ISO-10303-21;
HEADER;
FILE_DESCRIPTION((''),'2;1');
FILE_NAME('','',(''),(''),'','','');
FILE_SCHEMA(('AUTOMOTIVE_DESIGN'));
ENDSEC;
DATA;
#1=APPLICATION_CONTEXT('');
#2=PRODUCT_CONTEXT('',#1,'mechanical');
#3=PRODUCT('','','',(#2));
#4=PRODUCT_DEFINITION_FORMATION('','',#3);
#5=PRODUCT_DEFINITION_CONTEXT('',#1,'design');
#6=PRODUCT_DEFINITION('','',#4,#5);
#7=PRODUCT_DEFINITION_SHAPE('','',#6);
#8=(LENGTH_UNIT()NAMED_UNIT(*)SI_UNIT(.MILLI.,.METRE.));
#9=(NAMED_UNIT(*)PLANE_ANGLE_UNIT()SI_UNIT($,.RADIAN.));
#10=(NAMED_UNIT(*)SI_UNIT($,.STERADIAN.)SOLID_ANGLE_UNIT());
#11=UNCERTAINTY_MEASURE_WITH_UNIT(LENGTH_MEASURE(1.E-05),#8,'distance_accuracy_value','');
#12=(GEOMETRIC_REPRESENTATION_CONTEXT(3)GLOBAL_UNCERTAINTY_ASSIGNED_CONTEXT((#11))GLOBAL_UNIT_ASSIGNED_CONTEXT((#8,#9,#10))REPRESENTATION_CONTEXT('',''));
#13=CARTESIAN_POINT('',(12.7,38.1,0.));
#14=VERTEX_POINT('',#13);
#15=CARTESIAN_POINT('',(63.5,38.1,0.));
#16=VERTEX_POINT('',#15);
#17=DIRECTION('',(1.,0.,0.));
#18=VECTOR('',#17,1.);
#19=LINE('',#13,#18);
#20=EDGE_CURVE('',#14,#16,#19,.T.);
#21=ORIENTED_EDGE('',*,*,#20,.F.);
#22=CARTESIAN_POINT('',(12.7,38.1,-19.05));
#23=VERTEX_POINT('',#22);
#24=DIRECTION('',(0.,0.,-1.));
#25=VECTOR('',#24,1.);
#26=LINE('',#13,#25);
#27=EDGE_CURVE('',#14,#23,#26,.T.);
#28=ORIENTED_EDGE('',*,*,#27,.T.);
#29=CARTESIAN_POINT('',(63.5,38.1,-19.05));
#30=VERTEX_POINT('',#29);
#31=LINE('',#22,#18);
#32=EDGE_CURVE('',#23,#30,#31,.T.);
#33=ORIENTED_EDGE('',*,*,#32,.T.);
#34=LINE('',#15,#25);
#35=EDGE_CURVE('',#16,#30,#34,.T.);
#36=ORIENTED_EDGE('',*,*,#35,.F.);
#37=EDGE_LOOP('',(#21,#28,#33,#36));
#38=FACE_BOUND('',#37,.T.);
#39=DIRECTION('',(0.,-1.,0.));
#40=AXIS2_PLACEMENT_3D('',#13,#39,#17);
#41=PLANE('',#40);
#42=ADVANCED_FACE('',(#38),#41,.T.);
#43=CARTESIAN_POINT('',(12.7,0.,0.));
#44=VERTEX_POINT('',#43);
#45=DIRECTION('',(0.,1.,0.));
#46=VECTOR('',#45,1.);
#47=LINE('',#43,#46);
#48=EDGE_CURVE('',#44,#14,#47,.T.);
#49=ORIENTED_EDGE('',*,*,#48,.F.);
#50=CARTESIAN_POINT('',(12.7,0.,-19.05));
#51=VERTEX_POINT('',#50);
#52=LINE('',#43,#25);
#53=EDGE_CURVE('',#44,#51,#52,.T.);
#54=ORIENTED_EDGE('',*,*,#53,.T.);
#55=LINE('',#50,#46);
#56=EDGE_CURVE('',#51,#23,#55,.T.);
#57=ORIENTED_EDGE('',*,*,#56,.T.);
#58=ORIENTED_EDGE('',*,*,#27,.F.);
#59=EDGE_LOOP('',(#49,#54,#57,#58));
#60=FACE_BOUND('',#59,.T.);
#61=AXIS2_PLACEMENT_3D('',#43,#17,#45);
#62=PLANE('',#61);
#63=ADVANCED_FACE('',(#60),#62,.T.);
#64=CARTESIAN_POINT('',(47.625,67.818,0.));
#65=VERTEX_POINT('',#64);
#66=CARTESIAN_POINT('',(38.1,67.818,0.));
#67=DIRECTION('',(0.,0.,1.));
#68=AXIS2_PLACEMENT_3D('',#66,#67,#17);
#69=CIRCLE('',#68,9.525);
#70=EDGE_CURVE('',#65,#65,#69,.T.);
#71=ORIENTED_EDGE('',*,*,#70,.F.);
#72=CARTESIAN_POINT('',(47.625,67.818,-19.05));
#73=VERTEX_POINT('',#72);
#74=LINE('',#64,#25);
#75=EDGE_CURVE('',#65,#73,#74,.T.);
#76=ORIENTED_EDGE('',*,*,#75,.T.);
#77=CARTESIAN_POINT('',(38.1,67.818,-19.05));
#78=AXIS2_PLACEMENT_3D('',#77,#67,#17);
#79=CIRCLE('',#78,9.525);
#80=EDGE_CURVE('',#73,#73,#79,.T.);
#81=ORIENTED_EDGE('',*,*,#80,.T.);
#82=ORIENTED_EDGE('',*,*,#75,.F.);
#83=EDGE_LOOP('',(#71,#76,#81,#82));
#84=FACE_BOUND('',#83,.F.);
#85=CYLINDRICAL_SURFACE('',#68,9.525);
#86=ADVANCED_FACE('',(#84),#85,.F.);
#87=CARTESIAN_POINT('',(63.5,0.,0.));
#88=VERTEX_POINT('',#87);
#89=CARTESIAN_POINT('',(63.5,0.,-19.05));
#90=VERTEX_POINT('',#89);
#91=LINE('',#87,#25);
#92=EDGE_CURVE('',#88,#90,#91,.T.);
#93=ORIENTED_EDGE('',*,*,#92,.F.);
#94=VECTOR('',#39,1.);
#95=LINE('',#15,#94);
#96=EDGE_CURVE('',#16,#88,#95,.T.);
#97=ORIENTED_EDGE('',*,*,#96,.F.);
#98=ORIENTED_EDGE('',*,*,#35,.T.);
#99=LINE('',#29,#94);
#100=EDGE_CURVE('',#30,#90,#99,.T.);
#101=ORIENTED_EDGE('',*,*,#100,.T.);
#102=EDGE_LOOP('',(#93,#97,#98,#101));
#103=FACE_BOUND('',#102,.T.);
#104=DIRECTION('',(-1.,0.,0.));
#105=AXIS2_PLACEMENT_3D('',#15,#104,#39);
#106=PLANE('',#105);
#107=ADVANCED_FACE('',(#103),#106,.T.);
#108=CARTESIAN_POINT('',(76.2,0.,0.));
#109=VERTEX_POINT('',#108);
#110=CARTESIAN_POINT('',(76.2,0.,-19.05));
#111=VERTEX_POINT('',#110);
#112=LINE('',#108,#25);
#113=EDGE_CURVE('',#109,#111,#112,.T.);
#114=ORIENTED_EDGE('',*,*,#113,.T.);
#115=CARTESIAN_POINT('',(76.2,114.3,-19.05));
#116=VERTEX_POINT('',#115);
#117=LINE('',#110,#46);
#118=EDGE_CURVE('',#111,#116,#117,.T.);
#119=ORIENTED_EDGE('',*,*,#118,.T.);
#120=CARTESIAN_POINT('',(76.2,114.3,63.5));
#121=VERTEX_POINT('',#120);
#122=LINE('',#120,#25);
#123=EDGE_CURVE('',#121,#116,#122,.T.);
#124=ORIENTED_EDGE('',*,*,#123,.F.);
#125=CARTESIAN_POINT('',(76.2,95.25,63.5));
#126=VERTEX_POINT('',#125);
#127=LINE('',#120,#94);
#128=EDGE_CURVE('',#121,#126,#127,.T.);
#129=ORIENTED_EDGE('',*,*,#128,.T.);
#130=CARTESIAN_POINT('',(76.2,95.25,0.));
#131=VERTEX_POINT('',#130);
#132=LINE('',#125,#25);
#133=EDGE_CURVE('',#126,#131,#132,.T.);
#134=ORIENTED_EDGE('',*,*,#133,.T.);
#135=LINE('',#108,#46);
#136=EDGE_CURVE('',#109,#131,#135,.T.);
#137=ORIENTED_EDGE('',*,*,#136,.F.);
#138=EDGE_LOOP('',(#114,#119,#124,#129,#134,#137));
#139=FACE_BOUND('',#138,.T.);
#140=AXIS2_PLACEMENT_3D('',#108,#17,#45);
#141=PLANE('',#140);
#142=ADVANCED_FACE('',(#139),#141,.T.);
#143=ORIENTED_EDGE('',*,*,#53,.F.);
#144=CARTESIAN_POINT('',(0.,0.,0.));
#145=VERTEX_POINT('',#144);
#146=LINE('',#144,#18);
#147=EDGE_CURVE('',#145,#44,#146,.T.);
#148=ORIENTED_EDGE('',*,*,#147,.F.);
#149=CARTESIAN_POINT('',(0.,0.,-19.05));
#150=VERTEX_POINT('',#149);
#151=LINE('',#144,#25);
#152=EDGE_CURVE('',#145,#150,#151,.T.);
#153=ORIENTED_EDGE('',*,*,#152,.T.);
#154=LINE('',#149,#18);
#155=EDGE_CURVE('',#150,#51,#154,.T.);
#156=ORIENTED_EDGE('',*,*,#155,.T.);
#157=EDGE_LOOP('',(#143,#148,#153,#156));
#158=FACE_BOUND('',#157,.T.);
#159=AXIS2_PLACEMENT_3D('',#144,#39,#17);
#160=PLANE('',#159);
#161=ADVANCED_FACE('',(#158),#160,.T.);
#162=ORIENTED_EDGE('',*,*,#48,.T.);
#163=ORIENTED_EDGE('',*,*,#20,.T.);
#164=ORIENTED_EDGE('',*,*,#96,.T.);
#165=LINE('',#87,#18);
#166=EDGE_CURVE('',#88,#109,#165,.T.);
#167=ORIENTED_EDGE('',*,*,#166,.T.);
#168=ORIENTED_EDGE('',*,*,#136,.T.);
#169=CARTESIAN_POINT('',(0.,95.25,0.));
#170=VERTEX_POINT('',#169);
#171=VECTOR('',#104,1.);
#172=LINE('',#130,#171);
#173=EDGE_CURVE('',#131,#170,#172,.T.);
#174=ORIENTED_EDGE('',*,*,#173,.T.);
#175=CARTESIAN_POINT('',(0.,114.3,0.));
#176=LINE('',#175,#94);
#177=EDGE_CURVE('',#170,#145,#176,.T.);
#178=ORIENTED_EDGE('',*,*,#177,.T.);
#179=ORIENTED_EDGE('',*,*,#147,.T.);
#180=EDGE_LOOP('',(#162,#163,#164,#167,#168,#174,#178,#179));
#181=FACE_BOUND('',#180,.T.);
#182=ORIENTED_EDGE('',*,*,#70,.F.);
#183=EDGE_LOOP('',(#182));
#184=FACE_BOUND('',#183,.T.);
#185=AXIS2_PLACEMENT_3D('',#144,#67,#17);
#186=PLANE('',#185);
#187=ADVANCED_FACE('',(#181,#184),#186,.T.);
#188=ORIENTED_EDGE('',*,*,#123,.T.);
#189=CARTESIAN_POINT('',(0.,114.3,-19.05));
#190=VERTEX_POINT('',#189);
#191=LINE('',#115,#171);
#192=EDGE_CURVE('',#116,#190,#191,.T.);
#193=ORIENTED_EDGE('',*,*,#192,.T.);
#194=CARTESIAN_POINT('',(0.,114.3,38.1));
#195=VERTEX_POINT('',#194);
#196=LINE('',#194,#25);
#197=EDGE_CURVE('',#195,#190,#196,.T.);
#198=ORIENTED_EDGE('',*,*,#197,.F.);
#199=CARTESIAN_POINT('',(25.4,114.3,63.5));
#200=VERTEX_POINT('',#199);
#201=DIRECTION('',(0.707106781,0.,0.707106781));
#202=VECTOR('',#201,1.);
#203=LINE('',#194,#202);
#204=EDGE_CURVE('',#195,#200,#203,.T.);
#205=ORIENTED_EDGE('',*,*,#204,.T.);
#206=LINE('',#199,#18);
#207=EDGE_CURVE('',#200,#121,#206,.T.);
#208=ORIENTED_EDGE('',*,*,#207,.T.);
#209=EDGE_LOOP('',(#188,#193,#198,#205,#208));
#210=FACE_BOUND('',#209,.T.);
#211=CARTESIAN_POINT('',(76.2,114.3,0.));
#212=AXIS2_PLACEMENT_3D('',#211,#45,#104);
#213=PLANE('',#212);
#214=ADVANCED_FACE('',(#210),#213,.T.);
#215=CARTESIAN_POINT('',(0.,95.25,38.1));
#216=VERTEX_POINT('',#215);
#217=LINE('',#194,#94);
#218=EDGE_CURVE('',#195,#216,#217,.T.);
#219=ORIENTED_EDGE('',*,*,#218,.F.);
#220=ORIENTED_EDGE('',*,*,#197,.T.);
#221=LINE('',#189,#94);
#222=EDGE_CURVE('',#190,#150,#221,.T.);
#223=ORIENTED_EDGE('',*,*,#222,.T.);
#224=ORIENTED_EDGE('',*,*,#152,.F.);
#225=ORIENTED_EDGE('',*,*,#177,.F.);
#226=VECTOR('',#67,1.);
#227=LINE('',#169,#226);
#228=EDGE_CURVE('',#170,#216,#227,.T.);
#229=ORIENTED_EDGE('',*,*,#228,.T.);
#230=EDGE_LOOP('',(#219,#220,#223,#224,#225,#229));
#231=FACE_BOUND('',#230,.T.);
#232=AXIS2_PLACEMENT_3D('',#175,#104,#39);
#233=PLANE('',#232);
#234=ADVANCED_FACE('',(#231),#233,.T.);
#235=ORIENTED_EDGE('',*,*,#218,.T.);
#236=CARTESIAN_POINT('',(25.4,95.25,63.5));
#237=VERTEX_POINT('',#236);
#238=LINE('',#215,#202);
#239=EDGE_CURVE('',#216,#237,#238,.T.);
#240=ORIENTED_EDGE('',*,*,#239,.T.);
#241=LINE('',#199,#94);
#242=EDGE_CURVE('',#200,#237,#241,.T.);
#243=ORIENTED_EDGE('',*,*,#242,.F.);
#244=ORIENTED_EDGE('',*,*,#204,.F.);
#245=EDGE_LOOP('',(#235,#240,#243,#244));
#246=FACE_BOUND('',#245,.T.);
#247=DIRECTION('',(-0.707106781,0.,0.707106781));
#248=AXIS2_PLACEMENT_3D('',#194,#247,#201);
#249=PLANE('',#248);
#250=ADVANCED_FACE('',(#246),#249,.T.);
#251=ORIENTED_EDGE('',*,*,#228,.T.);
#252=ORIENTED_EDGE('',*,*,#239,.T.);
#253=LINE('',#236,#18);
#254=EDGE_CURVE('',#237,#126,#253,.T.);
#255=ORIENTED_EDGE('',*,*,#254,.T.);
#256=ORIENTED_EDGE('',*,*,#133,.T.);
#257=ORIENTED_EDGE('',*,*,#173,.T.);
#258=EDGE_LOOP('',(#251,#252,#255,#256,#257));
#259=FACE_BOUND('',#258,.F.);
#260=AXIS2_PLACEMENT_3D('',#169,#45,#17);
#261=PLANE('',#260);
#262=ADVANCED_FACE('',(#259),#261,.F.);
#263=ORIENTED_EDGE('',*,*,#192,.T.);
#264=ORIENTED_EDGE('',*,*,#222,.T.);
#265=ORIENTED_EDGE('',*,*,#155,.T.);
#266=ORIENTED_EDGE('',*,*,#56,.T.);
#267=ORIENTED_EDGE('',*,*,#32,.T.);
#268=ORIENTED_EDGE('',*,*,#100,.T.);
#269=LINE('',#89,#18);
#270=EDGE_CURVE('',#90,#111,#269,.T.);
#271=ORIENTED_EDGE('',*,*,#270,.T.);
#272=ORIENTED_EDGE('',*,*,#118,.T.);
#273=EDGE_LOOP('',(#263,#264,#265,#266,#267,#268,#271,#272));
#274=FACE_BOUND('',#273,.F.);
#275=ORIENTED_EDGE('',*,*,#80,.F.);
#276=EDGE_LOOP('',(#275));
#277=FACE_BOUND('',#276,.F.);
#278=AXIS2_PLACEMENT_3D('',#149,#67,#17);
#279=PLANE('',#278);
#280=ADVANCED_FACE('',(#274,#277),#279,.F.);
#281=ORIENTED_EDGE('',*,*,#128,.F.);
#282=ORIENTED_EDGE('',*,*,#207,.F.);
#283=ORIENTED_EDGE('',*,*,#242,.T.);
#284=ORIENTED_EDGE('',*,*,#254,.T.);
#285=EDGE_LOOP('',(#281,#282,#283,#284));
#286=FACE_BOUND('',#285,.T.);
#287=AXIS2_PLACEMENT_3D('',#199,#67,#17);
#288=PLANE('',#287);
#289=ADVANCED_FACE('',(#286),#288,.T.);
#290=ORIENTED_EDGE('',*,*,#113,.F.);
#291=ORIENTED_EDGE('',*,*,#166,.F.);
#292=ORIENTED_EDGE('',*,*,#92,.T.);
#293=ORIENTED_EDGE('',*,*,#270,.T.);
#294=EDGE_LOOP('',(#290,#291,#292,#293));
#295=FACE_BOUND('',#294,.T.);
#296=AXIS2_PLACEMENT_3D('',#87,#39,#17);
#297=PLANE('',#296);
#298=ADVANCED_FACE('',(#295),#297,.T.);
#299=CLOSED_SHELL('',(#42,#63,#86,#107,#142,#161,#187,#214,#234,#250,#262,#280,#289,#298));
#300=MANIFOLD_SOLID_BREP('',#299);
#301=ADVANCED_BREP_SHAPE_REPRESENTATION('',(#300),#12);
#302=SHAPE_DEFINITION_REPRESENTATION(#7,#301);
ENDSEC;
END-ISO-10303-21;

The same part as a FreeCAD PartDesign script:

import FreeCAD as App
import Part
import Sketcher
Q = App.Units.Quantity


def add_polygon(sketch, points):
    """Adds a closed chain of lines whose ends are joined by coincident constraints."""
    first, n = sketch.GeometryCount, len(points)
    for a, b in zip(points, points[1:] + points[:1]):
        sketch.addGeometry(Part.LineSegment(App.Vector(*a, 0), App.Vector(*b, 0)), False)
    for i in range(n):
        sketch.addConstraint(Sketcher.Constraint("Coincident", first + i, 2, first + (i + 1) % n, 1))

doc = App.newDocument("Part")
params = doc.addObject("Spreadsheet::Sheet", "Params")
for row, (alias, value) in enumerate([
    ("sketch1_diameter", "0.75 in"),
    ("sketch1_width", "2 in"),
    ("sketch1_width2", "3 in"),
    ("sketch1_height", "4.5 in"),
    ("sketch1_height2", "1.5 in"),
    ("pad1_length", "0.75 in"),
    ("sketch2_width", "2 in"),
    ("sketch2_height", "2.5 in"),
    ("pad2_length", "0.75 in"),
], start=1):
    params.set(f"A{row}", alias)
    params.set(f"B{row}", "=" + value)
    params.setAlias(f"B{row}", alias)

body = doc.addObject("PartDesign::Body", "Body")

# Sketch on XY plane
sketch1 = body.newObject("Sketcher::SketchObject", "Sketch")
sketch1.AttachmentSupport = (doc.getObject("XY_Plane"), [""])
sketch1.MapMode = "FlatFace"
add_polygon(sketch1, [(0, 114), (0, 0), (13, 0), (13, 38), (64, 38), (64, 0), (76, 0), (76, 114)])  # lines 0-7
sketch1.addGeometry(Part.Circle(App.Vector(38, 68, 0), App.Vector(0, 0, 1), 10), False)  # 8
sketch1.addConstraint([
    Sketcher.Constraint("Vertical", 0),
    Sketcher.Constraint("Horizontal", 1),
    Sketcher.Constraint("Vertical", 2),
    Sketcher.Constraint("Horizontal", 3),
    Sketcher.Constraint("Vertical", 4),
    Sketcher.Constraint("Horizontal", 5),
    Sketcher.Constraint("Vertical", 6),
    Sketcher.Constraint("Horizontal", 7),
    Sketcher.Constraint("Coincident", 0, 2, -1, 1),
    Sketcher.Constraint("PointOnObject", 4, 2, -1),
    Sketcher.Constraint("Equal", 1, 5),
    Sketcher.Constraint("Diameter", 8, Q("0.75 in")),
    Sketcher.Constraint("DistanceX", 3, 1, 3, 2, Q("2 in")),
    Sketcher.Constraint("DistanceX", 7, 2, 7, 1, Q("3 in")),
    Sketcher.Constraint("DistanceY", 0, 2, 0, 1, Q("4.5 in")),
    Sketcher.Constraint("DistanceY", 2, 1, 2, 2, Q("1.5 in")),
    Sketcher.Constraint("DistanceX", -1, 1, 8, 3, Q("1.5 in")),
    Sketcher.Constraint("DistanceY", -1, 1, 8, 3, Q("2.67 in")),
])
sketch1.setExpression("Constraints[19]", "Params.sketch1_diameter")
sketch1.setExpression("Constraints[20]", "Params.sketch1_width")
sketch1.setExpression("Constraints[21]", "Params.sketch1_width2")
sketch1.setExpression("Constraints[22]", "Params.sketch1_height")
sketch1.setExpression("Constraints[23]", "Params.sketch1_height2")
pad1 = body.newObject("PartDesign::Pad", "Pad")
pad1.Profile = sketch1
pad1.setExpression("Length", "Params.pad1_length")
pad1.Reversed = True

# Sketch on XZ plane
sketch2 = body.newObject("Sketcher::SketchObject", "Sketch001")
sketch2.AttachmentSupport = (doc.getObject("XZ_Plane"), [""])
sketch2.MapMode = "FlatFace"
sketch2.AttachmentOffset = App.Placement(App.Vector(0, 0, -4.5 * 25.4), App.Rotation())
add_polygon(sketch2, [(76, 0), (0, 0), (0, 38), (25, 64), (76, 64)])  # lines 0-4
sketch2.addConstraint([
    Sketcher.Constraint("Horizontal", 0),
    Sketcher.Constraint("Vertical", 1),
    Sketcher.Constraint("Horizontal", 3),
    Sketcher.Constraint("Vertical", 4),
    Sketcher.Constraint("Coincident", 0, 2, -1, 1),
    Sketcher.Constraint("DistanceX", 3, 1, 3, 2, Q("2 in")),
    Sketcher.Constraint("DistanceY", 4, 2, 4, 1, Q("2.5 in")),
    Sketcher.Constraint("DistanceX", -1, 1, 2, 2, Q("1 in")),
    Sketcher.Constraint("DistanceY", 1, 2, 2, 2, Q("1 in")),
])
sketch2.setExpression("Constraints[10]", "Params.sketch2_width")
sketch2.setExpression("Constraints[11]", "Params.sketch2_height")
pad2 = body.newObject("PartDesign::Pad", "Pad001")
pad2.Profile = sketch2
pad2.setExpression("Length", "Params.pad2_length")

doc.recompute()
